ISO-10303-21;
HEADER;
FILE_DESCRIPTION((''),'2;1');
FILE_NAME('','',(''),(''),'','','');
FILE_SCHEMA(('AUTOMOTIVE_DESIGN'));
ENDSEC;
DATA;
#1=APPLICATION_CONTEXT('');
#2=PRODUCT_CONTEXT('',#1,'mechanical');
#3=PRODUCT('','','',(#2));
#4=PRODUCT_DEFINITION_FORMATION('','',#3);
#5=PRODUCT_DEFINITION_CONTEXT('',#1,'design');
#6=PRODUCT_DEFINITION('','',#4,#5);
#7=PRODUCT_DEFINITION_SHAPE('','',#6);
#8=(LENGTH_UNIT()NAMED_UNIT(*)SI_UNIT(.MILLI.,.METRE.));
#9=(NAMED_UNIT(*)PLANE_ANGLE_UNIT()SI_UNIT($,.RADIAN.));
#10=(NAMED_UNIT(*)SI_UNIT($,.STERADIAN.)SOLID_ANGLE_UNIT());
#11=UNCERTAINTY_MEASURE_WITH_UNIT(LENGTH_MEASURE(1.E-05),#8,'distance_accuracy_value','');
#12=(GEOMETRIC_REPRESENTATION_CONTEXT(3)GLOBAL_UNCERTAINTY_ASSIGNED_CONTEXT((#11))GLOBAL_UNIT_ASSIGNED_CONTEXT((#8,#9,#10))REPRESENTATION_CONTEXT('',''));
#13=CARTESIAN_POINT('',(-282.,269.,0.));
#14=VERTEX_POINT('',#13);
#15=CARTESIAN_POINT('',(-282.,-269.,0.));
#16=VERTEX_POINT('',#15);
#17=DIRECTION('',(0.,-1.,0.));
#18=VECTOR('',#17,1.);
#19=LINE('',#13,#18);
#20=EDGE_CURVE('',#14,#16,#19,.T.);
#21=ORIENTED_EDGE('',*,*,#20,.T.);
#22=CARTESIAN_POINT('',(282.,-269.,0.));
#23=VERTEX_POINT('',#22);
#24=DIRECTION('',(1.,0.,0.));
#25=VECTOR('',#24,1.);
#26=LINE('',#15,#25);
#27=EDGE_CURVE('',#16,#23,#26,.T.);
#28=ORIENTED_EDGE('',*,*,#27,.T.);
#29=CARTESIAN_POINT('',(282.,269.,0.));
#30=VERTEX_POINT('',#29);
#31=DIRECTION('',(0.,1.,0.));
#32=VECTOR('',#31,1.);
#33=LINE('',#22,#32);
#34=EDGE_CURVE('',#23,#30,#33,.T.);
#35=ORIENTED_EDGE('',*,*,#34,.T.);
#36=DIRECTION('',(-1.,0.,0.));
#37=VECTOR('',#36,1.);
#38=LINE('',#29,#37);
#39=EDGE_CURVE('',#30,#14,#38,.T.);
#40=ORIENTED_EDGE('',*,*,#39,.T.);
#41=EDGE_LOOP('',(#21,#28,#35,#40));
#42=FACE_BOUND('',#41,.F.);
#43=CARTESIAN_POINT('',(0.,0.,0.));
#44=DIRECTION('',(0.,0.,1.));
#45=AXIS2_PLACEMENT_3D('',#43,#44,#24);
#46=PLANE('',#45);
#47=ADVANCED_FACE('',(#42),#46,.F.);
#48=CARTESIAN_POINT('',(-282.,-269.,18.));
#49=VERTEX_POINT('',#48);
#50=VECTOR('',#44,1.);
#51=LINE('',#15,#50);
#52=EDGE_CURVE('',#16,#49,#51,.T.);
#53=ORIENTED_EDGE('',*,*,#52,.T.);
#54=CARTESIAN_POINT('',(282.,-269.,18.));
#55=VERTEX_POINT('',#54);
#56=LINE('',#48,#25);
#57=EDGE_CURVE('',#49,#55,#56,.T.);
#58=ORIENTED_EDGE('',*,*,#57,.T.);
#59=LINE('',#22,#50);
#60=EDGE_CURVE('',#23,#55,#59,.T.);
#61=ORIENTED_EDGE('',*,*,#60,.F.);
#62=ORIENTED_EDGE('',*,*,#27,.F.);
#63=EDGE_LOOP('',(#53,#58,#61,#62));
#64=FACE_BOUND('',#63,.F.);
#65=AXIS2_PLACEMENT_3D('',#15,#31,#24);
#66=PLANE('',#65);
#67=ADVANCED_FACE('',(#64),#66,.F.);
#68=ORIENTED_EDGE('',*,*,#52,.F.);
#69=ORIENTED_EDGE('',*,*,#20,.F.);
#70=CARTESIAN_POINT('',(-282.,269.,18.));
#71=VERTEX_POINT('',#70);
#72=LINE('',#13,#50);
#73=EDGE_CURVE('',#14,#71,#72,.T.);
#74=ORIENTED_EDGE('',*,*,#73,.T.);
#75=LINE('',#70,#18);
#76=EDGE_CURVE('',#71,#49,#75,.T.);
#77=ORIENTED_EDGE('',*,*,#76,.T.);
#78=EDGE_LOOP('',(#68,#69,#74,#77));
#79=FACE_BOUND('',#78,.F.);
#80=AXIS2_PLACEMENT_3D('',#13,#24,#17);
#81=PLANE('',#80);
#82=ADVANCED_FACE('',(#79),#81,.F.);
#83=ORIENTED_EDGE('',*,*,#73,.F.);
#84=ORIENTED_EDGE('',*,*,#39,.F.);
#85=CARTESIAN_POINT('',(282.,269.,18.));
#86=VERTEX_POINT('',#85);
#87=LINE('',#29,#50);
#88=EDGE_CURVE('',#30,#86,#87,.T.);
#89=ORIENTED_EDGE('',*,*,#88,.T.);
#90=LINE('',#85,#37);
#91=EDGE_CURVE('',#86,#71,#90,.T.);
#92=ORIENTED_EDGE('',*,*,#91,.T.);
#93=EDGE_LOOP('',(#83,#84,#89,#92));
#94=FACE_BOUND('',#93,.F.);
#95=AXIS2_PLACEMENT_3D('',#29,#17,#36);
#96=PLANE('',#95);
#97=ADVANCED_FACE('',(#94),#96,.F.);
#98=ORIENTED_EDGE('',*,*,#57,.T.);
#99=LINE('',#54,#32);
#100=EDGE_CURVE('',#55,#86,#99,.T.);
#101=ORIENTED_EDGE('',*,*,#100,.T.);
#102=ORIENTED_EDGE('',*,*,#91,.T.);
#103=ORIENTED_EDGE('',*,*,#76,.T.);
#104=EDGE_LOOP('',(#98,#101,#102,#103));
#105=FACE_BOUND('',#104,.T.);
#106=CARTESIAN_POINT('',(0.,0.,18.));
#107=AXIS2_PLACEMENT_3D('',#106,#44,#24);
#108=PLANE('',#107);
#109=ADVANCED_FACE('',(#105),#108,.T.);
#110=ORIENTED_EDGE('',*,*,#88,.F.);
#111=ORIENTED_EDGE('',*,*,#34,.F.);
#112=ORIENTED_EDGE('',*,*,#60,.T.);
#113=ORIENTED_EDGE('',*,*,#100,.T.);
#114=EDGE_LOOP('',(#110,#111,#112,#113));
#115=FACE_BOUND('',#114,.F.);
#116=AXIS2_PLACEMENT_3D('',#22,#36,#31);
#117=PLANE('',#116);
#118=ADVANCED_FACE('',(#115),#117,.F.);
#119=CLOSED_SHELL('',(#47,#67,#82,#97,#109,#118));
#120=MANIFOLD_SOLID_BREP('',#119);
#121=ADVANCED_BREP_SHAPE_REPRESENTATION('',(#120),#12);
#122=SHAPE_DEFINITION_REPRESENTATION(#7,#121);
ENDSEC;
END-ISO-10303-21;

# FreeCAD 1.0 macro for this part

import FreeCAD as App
import Part
import Sketcher

V = App.Vector

doc = App.newDocument("Part")
body = doc.addObject("PartDesign::Body", "Body")

sketch1 = doc.addObject("Sketcher::SketchObject", "Sketch")
body.addObject(sketch1)
sketch1.AttachmentSupport = (doc.XY_Plane, [""])
sketch1.MapMode = "FlatFace"
sketch1.addGeometry(Part.LineSegment(V(-282, 269, 0), V(-282, -269, 0)), False)
sketch1.addGeometry(Part.LineSegment(V(-282, -269, 0), V(282, -269, 0)), False)
sketch1.addGeometry(Part.LineSegment(V(282, -269, 0), V(282, 269, 0)), False)
sketch1.addGeometry(Part.LineSegment(V(282, 269, 0), V(-282, 269, 0)), False)
sketch1.addConstraint(Sketcher.Constraint("Coincident", 0, 2, 1, 1))
sketch1.addConstraint(Sketcher.Constraint("Coincident", 1, 2, 2, 1))
sketch1.addConstraint(Sketcher.Constraint("Coincident", 2, 2, 3, 1))
sketch1.addConstraint(Sketcher.Constraint("Coincident", 3, 2, 0, 1))
sketch1.addConstraint(Sketcher.Constraint("Vertical", 0))
sketch1.addConstraint(Sketcher.Constraint("Horizontal", 1))
sketch1.addConstraint(Sketcher.Constraint("Vertical", 2))
sketch1.addConstraint(Sketcher.Constraint("Horizontal", 3))
sketch1.addConstraint(Sketcher.Constraint("Symmetric", 0, 2, 2, 2, -1, 1))
sketch1.addConstraint(Sketcher.Constraint("DistanceX", 1, 1, 1, 2, 564.0))
sketch1.addConstraint(Sketcher.Constraint("DistanceY", 0, 2, 0, 1, 538.0))
pad1 = doc.addObject("PartDesign::Pad", "Pad")
body.addObject(pad1)
pad1.Profile = sketch1
pad1.Length = 18

doc.recompute()
